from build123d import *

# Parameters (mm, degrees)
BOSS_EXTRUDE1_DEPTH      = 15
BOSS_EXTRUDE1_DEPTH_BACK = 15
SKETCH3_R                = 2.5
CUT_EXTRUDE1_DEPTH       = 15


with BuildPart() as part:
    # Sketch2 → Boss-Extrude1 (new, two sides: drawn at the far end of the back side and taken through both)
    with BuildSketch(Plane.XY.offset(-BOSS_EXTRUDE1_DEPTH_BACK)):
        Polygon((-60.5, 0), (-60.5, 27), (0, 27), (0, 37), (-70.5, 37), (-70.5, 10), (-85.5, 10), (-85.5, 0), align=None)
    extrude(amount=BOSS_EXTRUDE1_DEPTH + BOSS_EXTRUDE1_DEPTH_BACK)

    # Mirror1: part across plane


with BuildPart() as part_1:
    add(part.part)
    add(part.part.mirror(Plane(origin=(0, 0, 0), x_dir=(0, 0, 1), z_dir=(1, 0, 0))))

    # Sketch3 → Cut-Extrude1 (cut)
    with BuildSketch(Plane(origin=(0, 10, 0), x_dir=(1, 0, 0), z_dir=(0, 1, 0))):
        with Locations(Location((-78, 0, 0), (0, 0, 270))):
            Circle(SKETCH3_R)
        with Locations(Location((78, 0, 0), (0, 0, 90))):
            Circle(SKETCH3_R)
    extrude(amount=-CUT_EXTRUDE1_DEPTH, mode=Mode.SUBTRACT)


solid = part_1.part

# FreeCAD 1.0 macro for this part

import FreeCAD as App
import Part
import Sketcher

V = App.Vector
Q = App.Units.Quantity

doc = App.newDocument("Part")
params = doc.addObject("Spreadsheet::Sheet", "Params")
for row, (alias, value) in enumerate([
    ("sketch1_width", "15 mm"),
    ("sketch1_width2", "25 mm"),
    ("sketch1_height", "27 mm"),
    ("sketch1_height2", "10 mm"),
    ("sketch1_width3", "60.5 mm"),
    ("pad1_length", "15 mm"),
    ("pad1_length2", "15 mm"),
    ("sketch2_diameter", "5 mm"),
    ("pocket1_length", "15 mm"),
], start=1):
    params.set(f"A{row}", alias)
    params.set(f"B{row}", "=" + value)
    params.setAlias(f"B{row}", alias)

body = doc.addObject("PartDesign::Body", "Body")

sketch1 = body.newObject("Sketcher::SketchObject", "Sketch")
sketch1.AttachmentSupport = (doc.getObject("XY_Plane"), [""])
sketch1.MapMode = "FlatFace"
sketch1.addGeometry(Part.LineSegment(V(-60, 0, 0), V(-60, 27, 0)), False)
sketch1.addGeometry(Part.LineSegment(V(-60, 27, 0), V(0, 27, 0)), False)
sketch1.addGeometry(Part.LineSegment(V(0, 27, 0), V(0, 37, 0)), False)
sketch1.addGeometry(Part.LineSegment(V(0, 37, 0), V(-70, 37, 0)), False)
sketch1.addGeometry(Part.LineSegment(V(-70, 37, 0), V(-70, 10, 0)), False)
sketch1.addGeometry(Part.LineSegment(V(-70, 10, 0), V(-86, 10, 0)), False)
sketch1.addGeometry(Part.LineSegment(V(-86, 10, 0), V(-86, 0, 0)), False)
sketch1.addGeometry(Part.LineSegment(V(-86, 0, 0), V(-60, 0, 0)), False)
sketch1.addConstraint(Sketcher.Constraint("Coincident", 0, 2, 1, 1))
sketch1.addConstraint(Sketcher.Constraint("Coincident", 1, 2, 2, 1))
sketch1.addConstraint(Sketcher.Constraint("Coincident", 2, 2, 3, 1))
sketch1.addConstraint(Sketcher.Constraint("Coincident", 3, 2, 4, 1))
sketch1.addConstraint(Sketcher.Constraint("Coincident", 4, 2, 5, 1))
sketch1.addConstraint(Sketcher.Constraint("Coincident", 5, 2, 6, 1))
sketch1.addConstraint(Sketcher.Constraint("Coincident", 6, 2, 7, 1))
sketch1.addConstraint(Sketcher.Constraint("Coincident", 7, 2, 0, 1))
sketch1.addConstraint(Sketcher.Constraint("Vertical", 0))
sketch1.addConstraint(Sketcher.Constraint("Horizontal", 1))
sketch1.addConstraint(Sketcher.Constraint("Vertical", 2))
sketch1.addConstraint(Sketcher.Constraint("Horizontal", 3))
sketch1.addConstraint(Sketcher.Constraint("Vertical", 4))
sketch1.addConstraint(Sketcher.Constraint("Horizontal", 5))
sketch1.addConstraint(Sketcher.Constraint("Vertical", 6))
sketch1.addConstraint(Sketcher.Constraint("Horizontal", 7))
sketch1.addConstraint(Sketcher.Constraint("PointOnObject", 1, 2, -2))
sketch1.addConstraint(Sketcher.Constraint("PointOnObject", 6, 2, -1))
sketch1.addConstraint(Sketcher.Constraint("Equal", 0, 4))
sketch1.addConstraint(Sketcher.Constraint("DistanceX", 5, 2, 5, 1, Q("15 mm")))
sketch1.addConstraint(Sketcher.Constraint("DistanceX", 7, 1, 7, 2, Q("25 mm")))
sketch1.addConstraint(Sketcher.Constraint("DistanceY", 0, 1, 0, 2, Q("27 mm")))
sketch1.addConstraint(Sketcher.Constraint("DistanceY", 2, 1, 2, 2, Q("10 mm")))
sketch1.addConstraint(Sketcher.Constraint("DistanceX", 1, 1, 1, 2, Q("60.5 mm")))
sketch1.setExpression("Constraints[19]", "Params.sketch1_width")
sketch1.setExpression("Constraints[20]", "Params.sketch1_width2")
sketch1.setExpression("Constraints[21]", "Params.sketch1_height")
sketch1.setExpression("Constraints[22]", "Params.sketch1_height2")
sketch1.setExpression("Constraints[23]", "Params.sketch1_width3")
pad1 = body.newObject("PartDesign::Pad", "Pad")
pad1.Profile = sketch1
pad1.Type = "TwoLengths"
pad1.setExpression("Length", "Params.pad1_length")
pad1.setExpression("Length2", "Params.pad1_length2")
body2 = doc.addObject("PartDesign::Body", "Body001")
doc.recompute()

body2.BaseFeature = body
doc.recompute()

mirroring = doc.addObject("Part::Mirroring", "Mirroring")
mirroring.Source = body
mirroring.Base = V(0, 0, 0)
mirroring.Normal = V(1, 0, 0)
body3 = doc.addObject("PartDesign::Body", "Body002")
body3.BaseFeature = mirroring
boolean = body2.newObject("PartDesign::Boolean", "Boolean")
boolean.Type = "Fuse"
boolean.addObjects([body3])
doc.recompute()

sketch2 = body2.newObject("Sketcher::SketchObject", "Sketch001")
sketch2.AttachmentSupport = (doc.getObject("XZ_Plane001"), [""])
sketch2.MapMode = "FlatFace"
sketch2.AttachmentOffset = App.Placement(V(0, 0, -10), App.Rotation())
sketch2.addGeometry(Part.Circle(V(-78, 0, 0), V(0, 0, 1), 2.5), False)
sketch2.addGeometry(Part.Circle(V(78, 0, 0), V(0, 0, 1), 2.5), False)
sketch2.addConstraint(Sketcher.Constraint("Equal", 0, 1))
sketch2.addConstraint(Sketcher.Constraint("Symmetric", 0, 3, 1, 3, -1, 1))
sketch2.addConstraint(Sketcher.Constraint("PointOnObject", 0, 3, -1))
sketch2.addConstraint(Sketcher.Constraint("Diameter", 0, Q("5 mm")))
sketch2.addConstraint(Sketcher.Constraint("DistanceX", 0, 3, -1, 1, Q("78 mm")))
sketch2.setExpression("Constraints[3]", "Params.sketch2_diameter")
pocket1 = body2.newObject("PartDesign::Pocket", "Pocket")
pocket1.Profile = sketch2
pocket1.setExpression("Length", "Params.pocket1_length")
pocket1.Reversed = True
mirroring.Visibility = False

doc.recompute()
